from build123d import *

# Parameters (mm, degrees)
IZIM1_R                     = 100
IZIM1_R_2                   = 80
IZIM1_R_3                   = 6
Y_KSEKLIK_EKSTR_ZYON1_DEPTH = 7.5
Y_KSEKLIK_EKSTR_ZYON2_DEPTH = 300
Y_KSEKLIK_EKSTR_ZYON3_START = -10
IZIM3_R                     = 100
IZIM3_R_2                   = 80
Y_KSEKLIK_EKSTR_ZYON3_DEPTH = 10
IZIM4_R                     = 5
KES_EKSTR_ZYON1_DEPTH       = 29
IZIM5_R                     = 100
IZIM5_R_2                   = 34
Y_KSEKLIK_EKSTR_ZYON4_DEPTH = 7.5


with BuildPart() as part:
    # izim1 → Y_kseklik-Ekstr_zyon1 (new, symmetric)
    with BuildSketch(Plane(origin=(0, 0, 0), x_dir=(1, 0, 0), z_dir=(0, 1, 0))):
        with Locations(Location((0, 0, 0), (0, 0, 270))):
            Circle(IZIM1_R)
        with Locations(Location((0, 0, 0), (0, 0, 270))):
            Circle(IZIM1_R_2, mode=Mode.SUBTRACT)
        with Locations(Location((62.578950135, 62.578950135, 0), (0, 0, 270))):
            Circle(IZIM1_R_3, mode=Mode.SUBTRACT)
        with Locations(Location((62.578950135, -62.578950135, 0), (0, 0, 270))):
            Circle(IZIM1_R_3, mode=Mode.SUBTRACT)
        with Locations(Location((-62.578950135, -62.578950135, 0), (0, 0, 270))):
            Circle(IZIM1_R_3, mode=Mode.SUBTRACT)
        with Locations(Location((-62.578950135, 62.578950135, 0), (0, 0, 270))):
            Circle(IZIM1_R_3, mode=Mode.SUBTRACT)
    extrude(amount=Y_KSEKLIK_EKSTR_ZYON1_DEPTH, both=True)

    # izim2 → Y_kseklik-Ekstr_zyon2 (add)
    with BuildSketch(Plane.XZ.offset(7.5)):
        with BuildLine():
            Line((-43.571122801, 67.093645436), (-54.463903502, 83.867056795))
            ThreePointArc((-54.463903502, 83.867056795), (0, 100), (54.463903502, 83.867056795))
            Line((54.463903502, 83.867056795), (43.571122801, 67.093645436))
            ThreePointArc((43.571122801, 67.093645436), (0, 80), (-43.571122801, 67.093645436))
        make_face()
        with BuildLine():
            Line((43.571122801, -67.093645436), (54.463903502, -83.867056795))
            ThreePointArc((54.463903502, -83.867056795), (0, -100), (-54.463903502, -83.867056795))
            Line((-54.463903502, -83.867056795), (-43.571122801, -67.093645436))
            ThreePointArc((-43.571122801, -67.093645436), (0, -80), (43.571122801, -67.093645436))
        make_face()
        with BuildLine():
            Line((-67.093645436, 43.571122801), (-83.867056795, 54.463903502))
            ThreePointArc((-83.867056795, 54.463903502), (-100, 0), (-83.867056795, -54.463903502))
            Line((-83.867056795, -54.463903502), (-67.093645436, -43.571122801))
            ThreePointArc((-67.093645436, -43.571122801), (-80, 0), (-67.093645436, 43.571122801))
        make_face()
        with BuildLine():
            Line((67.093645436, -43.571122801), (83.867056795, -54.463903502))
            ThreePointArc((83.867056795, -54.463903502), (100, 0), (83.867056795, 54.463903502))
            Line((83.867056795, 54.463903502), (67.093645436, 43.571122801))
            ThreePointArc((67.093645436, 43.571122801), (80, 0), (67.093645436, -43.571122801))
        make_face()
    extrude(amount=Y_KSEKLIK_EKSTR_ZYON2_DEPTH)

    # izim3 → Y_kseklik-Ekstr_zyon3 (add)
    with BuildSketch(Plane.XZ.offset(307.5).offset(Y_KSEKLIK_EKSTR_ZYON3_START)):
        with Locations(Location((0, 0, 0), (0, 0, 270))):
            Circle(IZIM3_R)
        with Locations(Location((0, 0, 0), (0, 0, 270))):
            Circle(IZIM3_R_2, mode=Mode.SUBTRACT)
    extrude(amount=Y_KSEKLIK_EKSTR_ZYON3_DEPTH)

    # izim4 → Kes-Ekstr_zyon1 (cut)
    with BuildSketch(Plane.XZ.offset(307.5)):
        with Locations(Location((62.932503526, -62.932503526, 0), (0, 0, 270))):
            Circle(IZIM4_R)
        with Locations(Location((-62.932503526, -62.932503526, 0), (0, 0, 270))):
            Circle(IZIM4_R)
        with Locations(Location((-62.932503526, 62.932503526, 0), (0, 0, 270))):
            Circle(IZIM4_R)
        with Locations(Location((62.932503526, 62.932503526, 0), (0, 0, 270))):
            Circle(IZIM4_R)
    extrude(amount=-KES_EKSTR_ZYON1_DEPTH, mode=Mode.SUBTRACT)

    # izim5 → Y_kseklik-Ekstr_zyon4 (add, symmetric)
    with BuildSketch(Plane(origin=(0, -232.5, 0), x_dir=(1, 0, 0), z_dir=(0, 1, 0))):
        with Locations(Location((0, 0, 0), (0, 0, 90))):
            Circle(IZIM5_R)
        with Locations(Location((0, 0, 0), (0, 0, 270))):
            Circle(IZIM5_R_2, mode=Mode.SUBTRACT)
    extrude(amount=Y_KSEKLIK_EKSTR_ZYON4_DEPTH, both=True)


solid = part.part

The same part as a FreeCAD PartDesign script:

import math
import FreeCAD as App
import Part
import Sketcher
from FreeCAD import Vector
Q = App.Units.Quantity

doc = App.newDocument("Part")
body = doc.addObject("PartDesign::Body", "Body")

# Sketch on XZ plane
sketch1 = body.newObject("Sketcher::SketchObject", "Sketch")
sketch1.AttachmentSupport = (doc.getObject("XZ_Plane"), [""])
sketch1.MapMode = "FlatFace"
sketch1.addGeometry(Part.Circle(Vector(0, 0, 0), Vector(0, 0, 1), 100), False)
sketch1.addGeometry(Part.Circle(Vector(-63, -63, 0), Vector(0, 0, 1), 6), False)
sketch1.addGeometry(Part.Circle(Vector(-63, 63, 0), Vector(0, 0, 1), 6), False)
sketch1.addGeometry(Part.Circle(Vector(63, -63, 0), Vector(0, 0, 1), 6), False)
sketch1.addGeometry(Part.Circle(Vector(0, 0, 0), Vector(0, 0, 1), 80), False)
sketch1.addGeometry(Part.Circle(Vector(63, 63, 0), Vector(0, 0, 1), 6), False)
sketch1.addConstraint(Sketcher.Constraint("Coincident", 0, 3, -1, 1))
sketch1.addConstraint(Sketcher.Constraint("Coincident", 4, 3, -1, 1))
sketch1.addConstraint(Sketcher.Constraint("Equal", 1, 2))
sketch1.addConstraint(Sketcher.Constraint("Equal", 2, 3))
sketch1.addConstraint(Sketcher.Constraint("Equal", 3, 5))
sketch1.addConstraint(Sketcher.Constraint("Symmetric", 2, 3, 3, 3, -1, 1))
sketch1.addConstraint(Sketcher.Constraint("Symmetric", 1, 3, 5, 3, -1, 1))
sketch1.addConstraint(Sketcher.Constraint("Symmetric", 1, 3, 3, 3, -2))
sketch1.addConstraint(Sketcher.Constraint("Diameter", 0, 200.0))
sketch1.addConstraint(Sketcher.Constraint("Diameter", 1, 12.0))
sketch1.addConstraint(Sketcher.Constraint("Diameter", 4, 160.0))
sketch1.addConstraint(Sketcher.Constraint("DistanceY", 1, 3, 2, 3, 125.1579))
sketch1.addConstraint(Sketcher.Constraint("DistanceX", 1, 3, 3, 3, 125.1579))
pad1 = body.newObject("PartDesign::Pad", "Pad")
pad1.Profile = sketch1
pad1.Length = 15
pad1.Midplane = True

# Sketch on XZ plane
sketch2 = body.newObject("Sketcher::SketchObject", "Sketch001")
sketch2.AttachmentSupport = (doc.getObject("XZ_Plane"), [""])
sketch2.MapMode = "FlatFace"
sketch2.AttachmentOffset = App.Placement(Vector(0, 0, 7.5), App.Rotation())
sketch2.addGeometry(Part.LineSegment(Vector(-54, 84, 0), Vector(-44, 67, 0)), False)
sketch2.addGeometry(Part.ArcOfCircle(Part.Circle(Vector(0, 0, 0), Vector(0, 0, 1), 80), math.radians(57), math.radians(123)), False)
sketch2.addGeometry(Part.LineSegment(Vector(44, 67, 0), Vector(54, 84, 0)), False)
sketch2.addGeometry(Part.ArcOfCircle(Part.Circle(Vector(0, 0, 0), Vector(0, 0, 1), 100), math.radians(57), math.radians(123)), False)
sketch2.addGeometry(Part.LineSegment(Vector(54, -84, 0), Vector(44, -67, 0)), False)
sketch2.addGeometry(Part.ArcOfCircle(Part.Circle(Vector(0, 0, 0), Vector(0, 0, 1), 80), math.radians(-123), math.radians(-57)), False)
sketch2.addGeometry(Part.LineSegment(Vector(-44, -67, 0), Vector(-54, -84, 0)), False)
sketch2.addGeometry(Part.ArcOfCircle(Part.Circle(Vector(0, 0, 0), Vector(0, 0, 1), 100), math.radians(-123), math.radians(-57)), False)
sketch2.addGeometry(Part.LineSegment(Vector(-67, 44, 0), Vector(-84, 54, 0)), False)
sketch2.addGeometry(Part.ArcOfCircle(Part.Circle(Vector(0, 0, 0), Vector(0, 0, 1), 100), math.radians(147), math.radians(213)), False)
sketch2.addGeometry(Part.LineSegment(Vector(-84, -54, 0), Vector(-67, -44, 0)), False)
sketch2.addGeometry(Part.ArcOfCircle(Part.Circle(Vector(0, 0, 0), Vector(0, 0, 1), 80), math.radians(147), math.radians(213)), False)
sketch2.addGeometry(Part.LineSegment(Vector(67, -44, 0), Vector(84, -54, 0)), False)
sketch2.addGeometry(Part.ArcOfCircle(Part.Circle(Vector(0, 0, 0), Vector(0, 0, 1), 100), math.radians(-33), math.radians(33)), False)
sketch2.addGeometry(Part.LineSegment(Vector(84, 54, 0), Vector(67, 44, 0)), False)
sketch2.addGeometry(Part.ArcOfCircle(Part.Circle(Vector(0, 0, 0), Vector(0, 0, 1), 80), math.radians(-33), math.radians(33)), False)
sketch2.addConstraint(Sketcher.Constraint("Coincident", 0, 2, 1, 2))
sketch2.addConstraint(Sketcher.Constraint("Coincident", 1, 1, 2, 1))
sketch2.addConstraint(Sketcher.Constraint("Coincident", 2, 2, 3, 1))
sketch2.addConstraint(Sketcher.Constraint("Coincident", 3, 2, 0, 1))
sketch2.addConstraint(Sketcher.Constraint("Coincident", 4, 2, 5, 2))
sketch2.addConstraint(Sketcher.Constraint("Coincident", 5, 1, 6, 1))
sketch2.addConstraint(Sketcher.Constraint("Coincident", 6, 2, 7, 1))
sketch2.addConstraint(Sketcher.Constraint("Coincident", 7, 2, 4, 1))
sketch2.addConstraint(Sketcher.Constraint("Coincident", 8, 2, 9, 1))
sketch2.addConstraint(Sketcher.Constraint("Coincident", 9, 2, 10, 1))
sketch2.addConstraint(Sketcher.Constraint("Coincident", 10, 2, 11, 2))
sketch2.addConstraint(Sketcher.Constraint("Coincident", 11, 1, 8, 1))
sketch2.addConstraint(Sketcher.Constraint("Coincident", 12, 2, 13, 1))
sketch2.addConstraint(Sketcher.Constraint("Coincident", 13, 2, 14, 1))
sketch2.addConstraint(Sketcher.Constraint("Coincident", 14, 2, 15, 2))
sketch2.addConstraint(Sketcher.Constraint("Coincident", 15, 1, 12, 1))
sketch2.addConstraint(Sketcher.Constraint("Coincident", 1, 3, -1, 1))
sketch2.addConstraint(Sketcher.Constraint("Coincident", 3, 3, -1, 1))
sketch2.addConstraint(Sketcher.Constraint("Coincident", 5, 3, -1, 1))
sketch2.addConstraint(Sketcher.Constraint("Coincident", 7, 3, -1, 1))
sketch2.addConstraint(Sketcher.Constraint("Coincident", 9, 3, -1, 1))
sketch2.addConstraint(Sketcher.Constraint("Coincident", 11, 3, -1, 1))
sketch2.addConstraint(Sketcher.Constraint("Coincident", 13, 3, -1, 1))
sketch2.addConstraint(Sketcher.Constraint("Coincident", 15, 3, -1, 1))
sketch2.addConstraint(Sketcher.Constraint("Equal", 1, 5))
sketch2.addConstraint(Sketcher.Constraint("Equal", 3, 7))
sketch2.addConstraint(Sketcher.Constraint("Equal", 7, 9))
sketch2.addConstraint(Sketcher.Constraint("Equal", 5, 11))
sketch2.addConstraint(Sketcher.Constraint("Equal", 9, 13))
sketch2.addConstraint(Sketcher.Constraint("Equal", 11, 15))
sketch2.addConstraint(Sketcher.Constraint("Parallel", 0, 4))
sketch2.addConstraint(Sketcher.Constraint("Parallel", 2, 6))
sketch2.addConstraint(Sketcher.Constraint("Perpendicular", 6, 8))
sketch2.addConstraint(Sketcher.Constraint("Perpendicular", 4, 10))
sketch2.addConstraint(Sketcher.Constraint("Parallel", 8, 12))
sketch2.addConstraint(Sketcher.Constraint("Parallel", 10, 14))
sketch2.addConstraint(Sketcher.Constraint("Horizontal", 0, 2, 1, 1))
sketch2.addConstraint(Sketcher.Constraint("Horizontal", 2, 2, 3, 2))
sketch2.addConstraint(Sketcher.Constraint("Horizontal", 4, 2, 5, 1))
sketch2.addConstraint(Sketcher.Constraint("Horizontal", 9, 2, 12, 2))
sketch2.addConstraint(Sketcher.Constraint("Horizontal", 8, 2, 13, 2))
sketch2.addConstraint(Sketcher.Constraint("Vertical", 1, 1, 4, 2))
sketch2.addConstraint(Sketcher.Constraint("Vertical", 8, 2, 9, 2))
sketch2.addConstraint(Sketcher.Constraint("Radius", 1, 80.0))
sketch2.addConstraint(Sketcher.Constraint("Radius", 3, 100.0))
sketch2.addConstraint(Sketcher.Constraint("Angle", 0, Q("-57 deg")))
sketch2.addConstraint(Sketcher.Constraint("DistanceY", 8, 2, 0, 2, 12.629742))
sketch2.addConstraint(Sketcher.Constraint("DistanceX", 10, 2, 6, 2, 12.629742))
pad2 = body.newObject("PartDesign::Pad", "Pad001")
pad2.Profile = sketch2
pad2.Length = 300

# Sketch on XZ plane
sketch3 = body.newObject("Sketcher::SketchObject", "Sketch002")
sketch3.AttachmentSupport = (doc.getObject("XZ_Plane"), [""])
sketch3.MapMode = "FlatFace"
sketch3.AttachmentOffset = App.Placement(Vector(0, 0, 297.5), App.Rotation())
sketch3.addGeometry(Part.Circle(Vector(0, 0, 0), Vector(0, 0, 1), 100), False)
sketch3.addGeometry(Part.Circle(Vector(0, 0, 0), Vector(0, 0, 1), 80), False)
sketch3.addConstraint(Sketcher.Constraint("Coincident", 0, 3, -1, 1))
sketch3.addConstraint(Sketcher.Constraint("Coincident", 1, 3, -1, 1))
sketch3.addConstraint(Sketcher.Constraint("Diameter", 0, 200.0))
sketch3.addConstraint(Sketcher.Constraint("Diameter", 1, 160.0))
pad3 = body.newObject("PartDesign::Pad", "Pad002")
pad3.Profile = sketch3
pad3.Length = 10

# Sketch on XZ plane
sketch4 = body.newObject("Sketcher::SketchObject", "Sketch003")
sketch4.AttachmentSupport = (doc.getObject("XZ_Plane"), [""])
sketch4.MapMode = "FlatFace"
sketch4.AttachmentOffset = App.Placement(Vector(0, 0, 307.5), App.Rotation())
sketch4.addGeometry(Part.Circle(Vector(63, -63, 0), Vector(0, 0, 1), 5), False)
sketch4.addGeometry(Part.Circle(Vector(-63, -63, 0), Vector(0, 0, 1), 5), False)
sketch4.addGeometry(Part.Circle(Vector(-63, 63, 0), Vector(0, 0, 1), 5), False)
sketch4.addGeometry(Part.Circle(Vector(63, 63, 0), Vector(0, 0, 1), 5), False)
sketch4.addConstraint(Sketcher.Constraint("Equal", 0, 1))
sketch4.addConstraint(Sketcher.Constraint("Equal", 1, 2))
sketch4.addConstraint(Sketcher.Constraint("Equal", 2, 3))
sketch4.addConstraint(Sketcher.Constraint("Symmetric", 0, 3, 2, 3, -1, 1))
sketch4.addConstraint(Sketcher.Constraint("Symmetric", 1, 3, 3, 3, -1, 1))
sketch4.addConstraint(Sketcher.Constraint("Symmetric", 0, 3, 1, 3, -2))
sketch4.addConstraint(Sketcher.Constraint("Diameter", 0, 10.0))
sketch4.addConstraint(Sketcher.Constraint("DistanceX", -1, 1, 0, 3, 62.932504))
sketch4.addConstraint(Sketcher.Constraint("DistanceY", 0, 3, -1, 1, 62.932504))
pocket1 = body.newObject("PartDesign::Pocket", "Pocket")
pocket1.Profile = sketch4
pocket1.Length = 29

# Sketch on XZ plane
sketch5 = body.newObject("Sketcher::SketchObject", "Sketch004")
sketch5.AttachmentSupport = (doc.getObject("XZ_Plane"), [""])
sketch5.MapMode = "FlatFace"
sketch5.AttachmentOffset = App.Placement(Vector(0, 0, 232.5), App.Rotation())
sketch5.addGeometry(Part.Circle(Vector(0, 0, 0), Vector(0, 0, 1), 100), False)
sketch5.addGeometry(Part.Circle(Vector(0, 0, 0), Vector(0, 0, 1), 34), False)
sketch5.addConstraint(Sketcher.Constraint("Coincident", 0, 3, -1, 1))
sketch5.addConstraint(Sketcher.Constraint("Coincident", 1, 3, -1, 1))
sketch5.addConstraint(Sketcher.Constraint("Diameter", 0, 200.0))
sketch5.addConstraint(Sketcher.Constraint("Diameter", 1, 68.0))
pad4 = body.newObject("PartDesign::Pad", "Pad003")
pad4.Profile = sketch5
pad4.Length = 15
pad4.Midplane = True

doc.recompute()
